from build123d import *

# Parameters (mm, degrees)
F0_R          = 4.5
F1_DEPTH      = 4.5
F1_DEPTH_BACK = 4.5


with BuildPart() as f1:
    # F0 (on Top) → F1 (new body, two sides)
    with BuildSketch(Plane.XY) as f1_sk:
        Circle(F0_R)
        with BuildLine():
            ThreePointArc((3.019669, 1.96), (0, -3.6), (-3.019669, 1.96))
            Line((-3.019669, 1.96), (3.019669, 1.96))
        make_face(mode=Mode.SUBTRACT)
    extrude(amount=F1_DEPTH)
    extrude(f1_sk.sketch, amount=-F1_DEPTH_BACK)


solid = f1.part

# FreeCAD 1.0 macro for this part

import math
import FreeCAD as App
import Part
import Sketcher

V = App.Vector

doc = App.newDocument("Part")
body = doc.addObject("PartDesign::Body", "Body")

# Sketch on XY plane
sketch1 = body.newObject("Sketcher::SketchObject", "Sketch")
sketch1.AttachmentSupport = (doc.getObject("XY_Plane"), [""])
sketch1.MapMode = "FlatFace"
sketch1.addGeometry([
    Part.Circle(V(0, 0, 0), V(0, 0, 1), 4.5),
    Part.LineSegment(V(-3, 2, 0), V(3, 2, 0)),
    Part.ArcOfCircle(Part.Circle(V(0, 0, 0), V(0, 0, 1), 3.6), math.radians(147), math.radians(393)),
], False)
sketch1.addConstraint([
    Sketcher.Constraint("Coincident", 1, 1, 2, 1),
    Sketcher.Constraint("Coincident", 2, 2, 1, 2),
    Sketcher.Constraint("Horizontal", 1),
    Sketcher.Constraint("Coincident", 0, 3, -1, 1),
    Sketcher.Constraint("Coincident", 2, 3, -1, 1),
    Sketcher.Constraint("Diameter", 0, 9.0),
    Sketcher.Constraint("Radius", 2, 3.6),
    Sketcher.Constraint("DistanceY", -1, 1, 1, 1, 1.96),
])
pad1 = body.newObject("PartDesign::Pad", "Pad")
pad1.Profile = sketch1
pad1.Type = "TwoLengths"
pad1.Length = 4.5
pad1.Length2 = 4.5

doc.recompute()
